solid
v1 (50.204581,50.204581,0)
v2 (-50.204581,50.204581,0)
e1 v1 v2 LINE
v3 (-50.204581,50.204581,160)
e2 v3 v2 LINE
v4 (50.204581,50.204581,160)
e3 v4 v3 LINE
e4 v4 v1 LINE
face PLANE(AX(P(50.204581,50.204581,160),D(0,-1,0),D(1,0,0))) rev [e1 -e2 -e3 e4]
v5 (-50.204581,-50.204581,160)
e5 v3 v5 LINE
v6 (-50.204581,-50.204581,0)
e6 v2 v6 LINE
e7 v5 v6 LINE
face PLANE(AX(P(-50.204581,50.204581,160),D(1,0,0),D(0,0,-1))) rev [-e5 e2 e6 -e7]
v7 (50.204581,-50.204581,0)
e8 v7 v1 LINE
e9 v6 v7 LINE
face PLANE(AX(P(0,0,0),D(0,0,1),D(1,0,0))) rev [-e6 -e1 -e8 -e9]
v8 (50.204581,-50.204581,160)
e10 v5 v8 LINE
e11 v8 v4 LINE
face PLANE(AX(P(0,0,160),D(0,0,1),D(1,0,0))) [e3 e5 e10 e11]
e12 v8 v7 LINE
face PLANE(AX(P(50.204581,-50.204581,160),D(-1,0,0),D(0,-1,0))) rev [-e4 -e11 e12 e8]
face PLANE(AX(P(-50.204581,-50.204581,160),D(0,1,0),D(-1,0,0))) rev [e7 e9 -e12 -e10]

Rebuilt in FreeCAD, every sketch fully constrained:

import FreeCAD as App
import Part
import Sketcher
from FreeCAD import Vector


def add_polygon(sketch, points):
    """Adds a closed chain of lines whose ends are joined by coincident constraints."""
    first, n = sketch.GeometryCount, len(points)
    for a, b in zip(points, points[1:] + points[:1]):
        sketch.addGeometry(Part.LineSegment(App.Vector(*a, 0), App.Vector(*b, 0)), False)
    for i in range(n):
        sketch.addConstraint(Sketcher.Constraint("Coincident", first + i, 2, first + (i + 1) % n, 1))

doc = App.newDocument("Part")
body = doc.addObject("PartDesign::Body", "Body")

# Sketch on XY plane
sketch1 = body.newObject("Sketcher::SketchObject", "Sketch")
sketch1.AttachmentSupport = (doc.getObject("XY_Plane"), [""])
sketch1.MapMode = "FlatFace"
add_polygon(sketch1, [(-50, 50), (-50, -50), (50, -50), (50, 50)])  # lines 0-3
sketch1.addConstraint([
    Sketcher.Constraint("Vertical", 0),
    Sketcher.Constraint("Horizontal", 1),
    Sketcher.Constraint("Vertical", 2),
    Sketcher.Constraint("Horizontal", 3),
    Sketcher.Constraint("Symmetric", 0, 2, 2, 2, -1, 1),
    Sketcher.Constraint("Equal", 3, 0),
    Sketcher.Constraint("DistanceX", 1, 1, 1, 2, 100.409163),
])
pad1 = body.newObject("PartDesign::Pad", "Pad")
pad1.Profile = sketch1
pad1.Length = 160

doc.recompute()
